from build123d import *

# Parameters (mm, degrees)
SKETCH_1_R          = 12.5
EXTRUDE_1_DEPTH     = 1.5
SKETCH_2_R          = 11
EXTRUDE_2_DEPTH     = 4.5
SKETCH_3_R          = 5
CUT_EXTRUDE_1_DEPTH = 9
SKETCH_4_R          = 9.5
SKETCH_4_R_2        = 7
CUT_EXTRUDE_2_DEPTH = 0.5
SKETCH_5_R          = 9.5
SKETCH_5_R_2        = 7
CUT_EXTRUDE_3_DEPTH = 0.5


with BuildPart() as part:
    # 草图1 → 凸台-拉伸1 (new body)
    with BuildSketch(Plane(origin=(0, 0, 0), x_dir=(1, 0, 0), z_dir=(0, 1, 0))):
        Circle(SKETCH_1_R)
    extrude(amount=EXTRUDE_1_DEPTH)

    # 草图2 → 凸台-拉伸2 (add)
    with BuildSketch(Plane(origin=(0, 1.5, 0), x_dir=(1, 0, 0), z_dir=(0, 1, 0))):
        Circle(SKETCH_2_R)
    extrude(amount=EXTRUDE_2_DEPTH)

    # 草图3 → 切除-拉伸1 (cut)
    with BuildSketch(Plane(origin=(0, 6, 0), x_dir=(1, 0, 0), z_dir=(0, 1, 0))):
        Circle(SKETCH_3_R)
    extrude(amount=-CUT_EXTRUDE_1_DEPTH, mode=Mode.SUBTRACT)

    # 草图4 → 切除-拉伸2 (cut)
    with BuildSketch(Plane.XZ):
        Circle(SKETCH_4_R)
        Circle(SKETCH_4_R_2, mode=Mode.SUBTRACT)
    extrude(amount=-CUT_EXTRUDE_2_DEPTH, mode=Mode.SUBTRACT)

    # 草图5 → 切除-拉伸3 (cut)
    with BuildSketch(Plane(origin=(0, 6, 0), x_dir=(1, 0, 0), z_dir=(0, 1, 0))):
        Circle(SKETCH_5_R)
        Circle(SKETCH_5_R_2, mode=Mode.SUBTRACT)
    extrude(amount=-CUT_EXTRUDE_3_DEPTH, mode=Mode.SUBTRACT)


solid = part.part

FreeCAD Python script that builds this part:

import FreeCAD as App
import Part
import Sketcher
from FreeCAD import Vector

doc = App.newDocument("Part")
body = doc.addObject("PartDesign::Body", "Body")

sketch1 = body.newObject("Sketcher::SketchObject", "Sketch")
sketch1.AttachmentSupport = (doc.getObject("XZ_Plane"), [""])
sketch1.MapMode = "FlatFace"
sketch1.addGeometry(Part.Circle(Vector(0, 0, 0), Vector(0, 0, 1), 12), False)
sketch1.addConstraint(Sketcher.Constraint("Coincident", 0, 3, -1, 1))
sketch1.addConstraint(Sketcher.Constraint("Diameter", 0, 25.0))
pad1 = body.newObject("PartDesign::Pad", "Pad")
pad1.Profile = sketch1
pad1.Length = 1.5
pad1.Reversed = True

sketch2 = body.newObject("Sketcher::SketchObject", "Sketch001")
sketch2.AttachmentSupport = (doc.getObject("XZ_Plane"), [""])
sketch2.MapMode = "FlatFace"
sketch2.AttachmentOffset = App.Placement(Vector(0, 0, -1.5), App.Rotation())
sketch2.addGeometry(Part.Circle(Vector(0, 0, 0), Vector(0, 0, 1), 11), False)
sketch2.addConstraint(Sketcher.Constraint("Coincident", 0, 3, -1, 1))
sketch2.addConstraint(Sketcher.Constraint("Diameter", 0, 22.0))
pad2 = body.newObject("PartDesign::Pad", "Pad001")
pad2.Profile = sketch2
pad2.Length = 4.5
pad2.Reversed = True

sketch3 = body.newObject("Sketcher::SketchObject", "Sketch002")
sketch3.AttachmentSupport = (doc.getObject("XZ_Plane"), [""])
sketch3.MapMode = "FlatFace"
sketch3.AttachmentOffset = App.Placement(Vector(0, 0, -6), App.Rotation())
sketch3.addGeometry(Part.Circle(Vector(0, 0, 0), Vector(0, 0, 1), 5), False)
sketch3.addConstraint(Sketcher.Constraint("Coincident", 0, 3, -1, 1))
sketch3.addConstraint(Sketcher.Constraint("Diameter", 0, 10.0))
pocket1 = body.newObject("PartDesign::Pocket", "Pocket")
pocket1.Profile = sketch3
pocket1.Length = 9
pocket1.Reversed = True

sketch4 = body.newObject("Sketcher::SketchObject", "Sketch003")
sketch4.AttachmentSupport = (doc.getObject("XZ_Plane"), [""])
sketch4.MapMode = "FlatFace"
sketch4.addGeometry(Part.Circle(Vector(0, 0, 0), Vector(0, 0, 1), 10), False)
sketch4.addGeometry(Part.Circle(Vector(0, 0, 0), Vector(0, 0, 1), 7), False)
sketch4.addConstraint(Sketcher.Constraint("Coincident", 0, 3, -1, 1))
sketch4.addConstraint(Sketcher.Constraint("Coincident", 1, 3, -1, 1))
sketch4.addConstraint(Sketcher.Constraint("Diameter", 0, 19.0))
sketch4.addConstraint(Sketcher.Constraint("Diameter", 1, 14.0))
pocket2 = body.newObject("PartDesign::Pocket", "Pocket001")
pocket2.Profile = sketch4
pocket2.Length = 0.5

sketch5 = body.newObject("Sketcher::SketchObject", "Sketch004")
sketch5.AttachmentSupport = (doc.getObject("XZ_Plane"), [""])
sketch5.MapMode = "FlatFace"
sketch5.AttachmentOffset = App.Placement(Vector(0, 0, -6), App.Rotation())
sketch5.addGeometry(Part.Circle(Vector(0, 0, 0), Vector(0, 0, 1), 10), False)
sketch5.addGeometry(Part.Circle(Vector(0, 0, 0), Vector(0, 0, 1), 7), False)
sketch5.addConstraint(Sketcher.Constraint("Coincident", 0, 3, -1, 1))
sketch5.addConstraint(Sketcher.Constraint("Coincident", 1, 3, -1, 1))
sketch5.addConstraint(Sketcher.Constraint("Diameter", 0, 19.0))
sketch5.addConstraint(Sketcher.Constraint("Diameter", 1, 14.0))
pocket3 = body.newObject("PartDesign::Pocket", "Pocket002")
pocket3.Profile = sketch5
pocket3.Length = 0.5
pocket3.Reversed = True

doc.recompute()
